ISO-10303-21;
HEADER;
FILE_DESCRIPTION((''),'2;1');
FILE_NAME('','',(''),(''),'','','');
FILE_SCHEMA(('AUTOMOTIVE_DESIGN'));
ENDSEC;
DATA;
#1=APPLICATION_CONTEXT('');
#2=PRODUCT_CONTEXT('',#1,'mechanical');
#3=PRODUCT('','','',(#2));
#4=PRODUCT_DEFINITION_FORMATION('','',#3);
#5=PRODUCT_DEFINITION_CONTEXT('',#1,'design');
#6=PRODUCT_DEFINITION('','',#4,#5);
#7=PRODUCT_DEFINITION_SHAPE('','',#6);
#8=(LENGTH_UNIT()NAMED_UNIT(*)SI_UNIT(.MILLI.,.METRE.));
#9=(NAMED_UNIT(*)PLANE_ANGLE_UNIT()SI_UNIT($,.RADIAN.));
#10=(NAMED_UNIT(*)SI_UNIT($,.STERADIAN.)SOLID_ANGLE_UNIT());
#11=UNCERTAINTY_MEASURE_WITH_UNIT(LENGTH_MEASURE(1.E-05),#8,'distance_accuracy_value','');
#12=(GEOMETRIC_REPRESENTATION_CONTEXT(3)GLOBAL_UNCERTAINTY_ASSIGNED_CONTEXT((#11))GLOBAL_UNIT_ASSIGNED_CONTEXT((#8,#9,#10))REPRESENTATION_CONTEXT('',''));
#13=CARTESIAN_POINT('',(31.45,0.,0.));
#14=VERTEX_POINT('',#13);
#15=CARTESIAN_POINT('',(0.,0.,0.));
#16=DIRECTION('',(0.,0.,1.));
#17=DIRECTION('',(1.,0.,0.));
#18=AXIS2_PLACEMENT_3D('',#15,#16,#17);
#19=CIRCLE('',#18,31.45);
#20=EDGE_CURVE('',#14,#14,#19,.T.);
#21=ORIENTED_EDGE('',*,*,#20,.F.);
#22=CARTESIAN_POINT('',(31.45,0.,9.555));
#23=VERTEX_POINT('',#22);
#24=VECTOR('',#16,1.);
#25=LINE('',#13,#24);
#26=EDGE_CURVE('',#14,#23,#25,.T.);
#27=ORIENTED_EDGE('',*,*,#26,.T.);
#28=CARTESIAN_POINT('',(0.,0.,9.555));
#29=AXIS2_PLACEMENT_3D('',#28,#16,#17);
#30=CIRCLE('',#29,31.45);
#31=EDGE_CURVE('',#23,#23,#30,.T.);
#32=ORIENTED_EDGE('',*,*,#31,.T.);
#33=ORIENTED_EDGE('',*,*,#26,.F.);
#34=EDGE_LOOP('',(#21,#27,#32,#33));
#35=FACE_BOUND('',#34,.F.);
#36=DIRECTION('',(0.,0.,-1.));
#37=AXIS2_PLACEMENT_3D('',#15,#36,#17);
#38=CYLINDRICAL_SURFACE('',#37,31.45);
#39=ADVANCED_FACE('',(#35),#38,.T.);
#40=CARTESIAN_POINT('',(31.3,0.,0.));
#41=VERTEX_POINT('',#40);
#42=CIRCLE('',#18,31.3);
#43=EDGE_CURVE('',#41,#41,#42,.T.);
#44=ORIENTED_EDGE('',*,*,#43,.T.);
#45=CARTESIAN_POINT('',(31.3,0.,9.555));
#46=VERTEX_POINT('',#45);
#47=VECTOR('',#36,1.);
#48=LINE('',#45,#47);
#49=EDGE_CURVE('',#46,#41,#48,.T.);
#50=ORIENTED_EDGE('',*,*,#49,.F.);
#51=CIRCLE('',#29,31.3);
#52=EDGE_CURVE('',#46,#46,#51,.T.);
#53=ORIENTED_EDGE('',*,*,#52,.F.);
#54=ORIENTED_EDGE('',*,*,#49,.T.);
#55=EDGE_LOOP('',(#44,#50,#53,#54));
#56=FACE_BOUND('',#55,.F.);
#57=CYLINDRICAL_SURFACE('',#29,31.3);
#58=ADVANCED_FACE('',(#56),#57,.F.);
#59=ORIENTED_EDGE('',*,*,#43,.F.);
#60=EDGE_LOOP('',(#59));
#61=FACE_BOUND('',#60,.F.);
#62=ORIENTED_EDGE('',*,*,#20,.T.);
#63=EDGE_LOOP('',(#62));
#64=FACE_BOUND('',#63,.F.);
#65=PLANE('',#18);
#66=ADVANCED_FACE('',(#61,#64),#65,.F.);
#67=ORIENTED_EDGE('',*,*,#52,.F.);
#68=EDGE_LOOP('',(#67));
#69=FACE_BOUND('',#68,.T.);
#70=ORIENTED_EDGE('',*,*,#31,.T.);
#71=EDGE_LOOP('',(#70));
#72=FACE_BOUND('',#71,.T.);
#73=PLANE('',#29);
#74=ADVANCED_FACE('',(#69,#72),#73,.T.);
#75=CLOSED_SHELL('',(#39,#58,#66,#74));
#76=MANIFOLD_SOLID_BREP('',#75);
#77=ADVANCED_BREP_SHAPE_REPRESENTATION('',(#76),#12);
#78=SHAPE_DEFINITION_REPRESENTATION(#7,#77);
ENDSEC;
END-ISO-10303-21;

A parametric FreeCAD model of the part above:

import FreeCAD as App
import Part
import Sketcher
from FreeCAD import Vector
Q = App.Units.Quantity

doc = App.newDocument("Part")
body = doc.addObject("PartDesign::Body", "Body")

# Sketch on XY plane
sketch1 = body.newObject("Sketcher::SketchObject", "Sketch")
sketch1.AttachmentSupport = (doc.getObject("XY_Plane"), [""])
sketch1.MapMode = "FlatFace"
sketch1.addGeometry(Part.Circle(Vector(0, 0, 0), Vector(0, 0, 1), 31), False)
sketch1.addConstraint(Sketcher.Constraint("Coincident", 0, 3, -1, 1))
sketch1.addConstraint(Sketcher.Constraint("Diameter", 0, Q("62.9 mm")))
pad1 = body.newObject("PartDesign::Pad", "Pad")
pad1.Profile = sketch1
pad1.Length = 9.555

# Sketch on XY plane
sketch2 = body.newObject("Sketcher::SketchObject", "Sketch001")
sketch2.AttachmentSupport = (doc.getObject("XY_Plane"), [""])
sketch2.MapMode = "FlatFace"
sketch2.AttachmentOffset = App.Placement(Vector(0, 0, 9.555), App.Rotation())
sketch2.addGeometry(Part.Circle(Vector(0, 0, 0), Vector(0, 0, 1), 31), False)
sketch2.addConstraint(Sketcher.Constraint("Coincident", 0, 3, -1, 1))
sketch2.addConstraint(Sketcher.Constraint("Diameter", 0, Q("62.6 mm")))
pocket1 = body.newObject("PartDesign::Pocket", "Pocket")
pocket1.Profile = sketch2
pocket1.Type = "ThroughAll"

doc.recompute()
